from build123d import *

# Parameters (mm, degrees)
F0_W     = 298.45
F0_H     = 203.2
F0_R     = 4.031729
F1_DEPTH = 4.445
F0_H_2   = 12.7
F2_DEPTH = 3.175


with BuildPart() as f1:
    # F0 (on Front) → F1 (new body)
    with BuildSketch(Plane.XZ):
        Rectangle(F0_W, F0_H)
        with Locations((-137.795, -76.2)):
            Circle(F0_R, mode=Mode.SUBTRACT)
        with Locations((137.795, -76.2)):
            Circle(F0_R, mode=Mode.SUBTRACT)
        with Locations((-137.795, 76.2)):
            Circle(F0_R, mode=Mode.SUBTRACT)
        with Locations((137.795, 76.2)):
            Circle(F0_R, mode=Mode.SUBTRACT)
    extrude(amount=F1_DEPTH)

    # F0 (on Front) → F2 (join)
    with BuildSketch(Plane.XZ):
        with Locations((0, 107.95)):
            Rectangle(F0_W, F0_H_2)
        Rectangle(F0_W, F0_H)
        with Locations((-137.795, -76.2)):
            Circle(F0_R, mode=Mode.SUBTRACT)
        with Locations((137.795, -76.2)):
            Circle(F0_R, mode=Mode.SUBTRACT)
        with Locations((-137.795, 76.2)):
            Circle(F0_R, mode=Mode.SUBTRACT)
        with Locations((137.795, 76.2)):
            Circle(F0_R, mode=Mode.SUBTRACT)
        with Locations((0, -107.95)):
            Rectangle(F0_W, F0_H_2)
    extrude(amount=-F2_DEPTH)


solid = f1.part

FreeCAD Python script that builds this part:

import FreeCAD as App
import Part
import Sketcher

V = App.Vector
Q = App.Units.Quantity

doc = App.newDocument("Part")
params = doc.addObject("Spreadsheet::Sheet", "Params")
for row, (alias, value) in enumerate([
    ("sketch1_height", "8 in"),
    ("sketch1_width", "11.75 in"),
    ("pad1_length", "0.175 in"),
    ("sketch2_height", "9 in"),
    ("sketch2_width", "11.75 in"),
    ("pad2_length", "0.125 in"),
], start=1):
    params.set(f"A{row}", alias)
    params.set(f"B{row}", "=" + value)
    params.setAlias(f"B{row}", alias)

body = doc.addObject("PartDesign::Body", "Body")

# Sketch on XZ plane
sketch1 = body.newObject("Sketcher::SketchObject", "Sketch")
sketch1.AttachmentSupport = (doc.getObject("XZ_Plane"), [""])
sketch1.MapMode = "FlatFace"
sketch1.addGeometry([
    Part.LineSegment(V(-149.2, 101.6, 0), V(-149.2, -101.6, 0)),  # 0
    Part.LineSegment(V(-149.2, -101.6, 0), V(149.2, -101.6, 0)),  # 1
    Part.LineSegment(V(149.2, -101.6, 0), V(149.2, 101.6, 0)),  # 2
    Part.LineSegment(V(149.2, 101.6, 0), V(-149.2, 101.6, 0)),  # 3
    Part.Circle(V(-137.8, -76.2, 0), V(0, 0, 1), 4),  # 4
    Part.Circle(V(137.8, -76.2, 0), V(0, 0, 1), 4),  # 5
    Part.Circle(V(-137.8, 76.2, 0), V(0, 0, 1), 4),  # 6
    Part.Circle(V(137.8, 76.2, 0), V(0, 0, 1), 4),  # 7
], False)
sketch1.addConstraint([
    Sketcher.Constraint("Coincident", 0, 2, 1, 1),
    Sketcher.Constraint("Coincident", 1, 2, 2, 1),
    Sketcher.Constraint("Coincident", 2, 2, 3, 1),
    Sketcher.Constraint("Coincident", 3, 2, 0, 1),
    Sketcher.Constraint("Vertical", 0),
    Sketcher.Constraint("Horizontal", 1),
    Sketcher.Constraint("Vertical", 2),
    Sketcher.Constraint("Horizontal", 3),
    Sketcher.Constraint("Equal", 4, 5),
    Sketcher.Constraint("Equal", 5, 6),
    Sketcher.Constraint("Equal", 6, 7),
    Sketcher.Constraint("Symmetric", 5, 3, 6, 3, -1, 1),
    Sketcher.Constraint("Symmetric", 4, 3, 7, 3, -1, 1),
    Sketcher.Constraint("Symmetric", 0, 2, 2, 2, -1, 1),
    Sketcher.Constraint("Symmetric", 4, 3, 5, 3, -2),
    Sketcher.Constraint("DistanceY", 0, 2, 0, 1, Q("8 in")),
    Sketcher.Constraint("DistanceY", 4, 3, -1, 1, Q("3 in")),
    Sketcher.Constraint("DistanceX", 1, 1, 1, 2, Q("11.75 in")),
    Sketcher.Constraint("DistanceX", 0, 2, 5, 3, Q("11.3 in")),
    Sketcher.Constraint("Diameter", 4, 8.063458),
])
sketch1.setExpression("Constraints[15]", "Params.sketch1_height")
sketch1.setExpression("Constraints[17]", "Params.sketch1_width")
pad1 = body.newObject("PartDesign::Pad", "Pad")
pad1.Profile = sketch1
pad1.setExpression("Length", "Params.pad1_length")

# Sketch on XZ plane
sketch2 = body.newObject("Sketcher::SketchObject", "Sketch001")
sketch2.AttachmentSupport = (doc.getObject("XZ_Plane"), [""])
sketch2.MapMode = "FlatFace"
sketch2.addGeometry([
    Part.LineSegment(V(-149.2, 114.3, 0), V(-149.2, -114.3, 0)),  # 0
    Part.LineSegment(V(-149.2, -114.3, 0), V(149.2, -114.3, 0)),  # 1
    Part.LineSegment(V(149.2, -114.3, 0), V(149.2, 114.3, 0)),  # 2
    Part.LineSegment(V(149.2, 114.3, 0), V(-149.2, 114.3, 0)),  # 3
    Part.Circle(V(-137.8, -76.2, 0), V(0, 0, 1), 4),  # 4
    Part.Circle(V(137.8, -76.2, 0), V(0, 0, 1), 4),  # 5
    Part.Circle(V(-137.8, 76.2, 0), V(0, 0, 1), 4),  # 6
    Part.Circle(V(137.8, 76.2, 0), V(0, 0, 1), 4),  # 7
], False)
sketch2.addConstraint([
    Sketcher.Constraint("Coincident", 0, 2, 1, 1),
    Sketcher.Constraint("Coincident", 1, 2, 2, 1),
    Sketcher.Constraint("Coincident", 2, 2, 3, 1),
    Sketcher.Constraint("Coincident", 3, 2, 0, 1),
    Sketcher.Constraint("Vertical", 0),
    Sketcher.Constraint("Horizontal", 1),
    Sketcher.Constraint("Vertical", 2),
    Sketcher.Constraint("Horizontal", 3),
    Sketcher.Constraint("Equal", 4, 5),
    Sketcher.Constraint("Equal", 5, 6),
    Sketcher.Constraint("Equal", 6, 7),
    Sketcher.Constraint("Symmetric", 5, 3, 6, 3, -1, 1),
    Sketcher.Constraint("Symmetric", 4, 3, 7, 3, -1, 1),
    Sketcher.Constraint("Symmetric", 0, 2, 2, 2, -1, 1),
    Sketcher.Constraint("Symmetric", 4, 3, 5, 3, -2),
    Sketcher.Constraint("DistanceY", 0, 2, 0, 1, Q("9 in")),
    Sketcher.Constraint("DistanceY", 4, 3, -1, 1, Q("3 in")),
    Sketcher.Constraint("DistanceX", 1, 1, 1, 2, Q("11.75 in")),
    Sketcher.Constraint("DistanceX", 0, 2, 5, 3, Q("11.3 in")),
    Sketcher.Constraint("Diameter", 4, 8.063458),
])
sketch2.setExpression("Constraints[15]", "Params.sketch2_height")
sketch2.setExpression("Constraints[17]", "Params.sketch2_width")
pad2 = body.newObject("PartDesign::Pad", "Pad001")
pad2.Profile = sketch2
pad2.setExpression("Length", "Params.pad2_length")
pad2.Reversed = True

doc.recompute()
